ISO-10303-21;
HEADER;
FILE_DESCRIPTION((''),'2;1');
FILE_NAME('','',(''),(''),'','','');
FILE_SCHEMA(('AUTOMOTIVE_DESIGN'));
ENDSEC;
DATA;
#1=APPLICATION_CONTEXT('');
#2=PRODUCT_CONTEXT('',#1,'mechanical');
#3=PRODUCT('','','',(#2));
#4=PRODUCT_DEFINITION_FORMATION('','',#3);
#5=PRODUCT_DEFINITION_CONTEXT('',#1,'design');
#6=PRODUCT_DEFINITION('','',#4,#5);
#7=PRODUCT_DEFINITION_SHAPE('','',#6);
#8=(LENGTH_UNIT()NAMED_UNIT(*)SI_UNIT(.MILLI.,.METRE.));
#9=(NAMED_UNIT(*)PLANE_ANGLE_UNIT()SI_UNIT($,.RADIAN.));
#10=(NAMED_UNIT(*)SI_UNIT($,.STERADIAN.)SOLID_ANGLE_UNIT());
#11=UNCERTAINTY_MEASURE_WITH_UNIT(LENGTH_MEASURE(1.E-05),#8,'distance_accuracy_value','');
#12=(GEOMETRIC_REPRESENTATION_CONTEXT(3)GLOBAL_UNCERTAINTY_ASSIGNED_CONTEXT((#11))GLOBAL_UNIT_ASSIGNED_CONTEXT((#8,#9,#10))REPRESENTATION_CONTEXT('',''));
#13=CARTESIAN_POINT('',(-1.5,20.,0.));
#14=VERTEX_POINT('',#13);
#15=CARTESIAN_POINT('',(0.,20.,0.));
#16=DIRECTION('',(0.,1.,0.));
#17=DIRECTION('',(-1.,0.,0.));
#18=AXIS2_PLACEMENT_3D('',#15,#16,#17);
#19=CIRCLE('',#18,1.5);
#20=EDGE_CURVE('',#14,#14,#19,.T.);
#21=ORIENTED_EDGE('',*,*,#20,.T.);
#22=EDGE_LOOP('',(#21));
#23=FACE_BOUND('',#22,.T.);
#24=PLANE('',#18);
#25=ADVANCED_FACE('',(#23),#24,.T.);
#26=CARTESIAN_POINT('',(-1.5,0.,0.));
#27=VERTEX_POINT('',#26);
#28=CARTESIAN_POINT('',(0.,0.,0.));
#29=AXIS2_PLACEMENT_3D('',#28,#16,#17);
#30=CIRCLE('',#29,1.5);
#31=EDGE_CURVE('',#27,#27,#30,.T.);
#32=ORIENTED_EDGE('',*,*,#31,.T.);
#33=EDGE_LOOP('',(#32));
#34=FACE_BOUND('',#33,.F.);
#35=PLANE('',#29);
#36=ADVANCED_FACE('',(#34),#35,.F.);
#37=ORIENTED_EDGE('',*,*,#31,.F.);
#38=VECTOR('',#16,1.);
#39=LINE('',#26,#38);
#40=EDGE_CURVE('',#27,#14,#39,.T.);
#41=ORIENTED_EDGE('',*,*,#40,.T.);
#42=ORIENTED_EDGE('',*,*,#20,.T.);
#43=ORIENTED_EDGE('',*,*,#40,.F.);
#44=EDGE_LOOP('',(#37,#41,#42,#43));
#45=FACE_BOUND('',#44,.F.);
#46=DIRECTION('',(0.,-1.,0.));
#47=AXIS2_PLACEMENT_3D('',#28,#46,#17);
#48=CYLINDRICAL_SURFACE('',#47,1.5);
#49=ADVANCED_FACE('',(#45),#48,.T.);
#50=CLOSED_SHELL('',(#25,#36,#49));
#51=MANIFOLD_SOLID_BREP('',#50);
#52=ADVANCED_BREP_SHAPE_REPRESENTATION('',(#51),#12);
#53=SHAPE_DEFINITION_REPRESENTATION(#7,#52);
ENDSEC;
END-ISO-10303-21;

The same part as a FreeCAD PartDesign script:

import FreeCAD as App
import Part
import Sketcher
from FreeCAD import Vector
Q = App.Units.Quantity

doc = App.newDocument("Part")
params = doc.addObject("Spreadsheet::Sheet", "Params")
for row, (alias, value) in enumerate([
    ("sketch1_diameter", "3 mm"),
    ("pad1_length", "20 mm"),
], start=1):
    params.set(f"A{row}", alias)
    params.set(f"B{row}", "=" + value)
    params.setAlias(f"B{row}", alias)

body = doc.addObject("PartDesign::Body", "Body")

# Sketch on XZ plane
sketch1 = doc.addObject("Sketcher::SketchObject", "Sketch")
body.addObject(sketch1)
sketch1.AttachmentSupport = (doc.XZ_Plane, [""])
sketch1.MapMode = "FlatFace"
sketch1.addGeometry(Part.Circle(Vector(0, 0, 0), Vector(0, 0, 1), 1.5), False)
sketch1.addConstraint(Sketcher.Constraint("Coincident", 0, 3, -1, 1))
sketch1.addConstraint(Sketcher.Constraint("Diameter", 0, Q("3 mm")))
sketch1.setExpression("Constraints[1]", "Params.sketch1_diameter")
pad1 = doc.addObject("PartDesign::Pad", "Pad")
body.addObject(pad1)
pad1.Profile = sketch1
pad1.setExpression("Length", "Params.pad1_length")
pad1.Reversed = True

doc.recompute()
